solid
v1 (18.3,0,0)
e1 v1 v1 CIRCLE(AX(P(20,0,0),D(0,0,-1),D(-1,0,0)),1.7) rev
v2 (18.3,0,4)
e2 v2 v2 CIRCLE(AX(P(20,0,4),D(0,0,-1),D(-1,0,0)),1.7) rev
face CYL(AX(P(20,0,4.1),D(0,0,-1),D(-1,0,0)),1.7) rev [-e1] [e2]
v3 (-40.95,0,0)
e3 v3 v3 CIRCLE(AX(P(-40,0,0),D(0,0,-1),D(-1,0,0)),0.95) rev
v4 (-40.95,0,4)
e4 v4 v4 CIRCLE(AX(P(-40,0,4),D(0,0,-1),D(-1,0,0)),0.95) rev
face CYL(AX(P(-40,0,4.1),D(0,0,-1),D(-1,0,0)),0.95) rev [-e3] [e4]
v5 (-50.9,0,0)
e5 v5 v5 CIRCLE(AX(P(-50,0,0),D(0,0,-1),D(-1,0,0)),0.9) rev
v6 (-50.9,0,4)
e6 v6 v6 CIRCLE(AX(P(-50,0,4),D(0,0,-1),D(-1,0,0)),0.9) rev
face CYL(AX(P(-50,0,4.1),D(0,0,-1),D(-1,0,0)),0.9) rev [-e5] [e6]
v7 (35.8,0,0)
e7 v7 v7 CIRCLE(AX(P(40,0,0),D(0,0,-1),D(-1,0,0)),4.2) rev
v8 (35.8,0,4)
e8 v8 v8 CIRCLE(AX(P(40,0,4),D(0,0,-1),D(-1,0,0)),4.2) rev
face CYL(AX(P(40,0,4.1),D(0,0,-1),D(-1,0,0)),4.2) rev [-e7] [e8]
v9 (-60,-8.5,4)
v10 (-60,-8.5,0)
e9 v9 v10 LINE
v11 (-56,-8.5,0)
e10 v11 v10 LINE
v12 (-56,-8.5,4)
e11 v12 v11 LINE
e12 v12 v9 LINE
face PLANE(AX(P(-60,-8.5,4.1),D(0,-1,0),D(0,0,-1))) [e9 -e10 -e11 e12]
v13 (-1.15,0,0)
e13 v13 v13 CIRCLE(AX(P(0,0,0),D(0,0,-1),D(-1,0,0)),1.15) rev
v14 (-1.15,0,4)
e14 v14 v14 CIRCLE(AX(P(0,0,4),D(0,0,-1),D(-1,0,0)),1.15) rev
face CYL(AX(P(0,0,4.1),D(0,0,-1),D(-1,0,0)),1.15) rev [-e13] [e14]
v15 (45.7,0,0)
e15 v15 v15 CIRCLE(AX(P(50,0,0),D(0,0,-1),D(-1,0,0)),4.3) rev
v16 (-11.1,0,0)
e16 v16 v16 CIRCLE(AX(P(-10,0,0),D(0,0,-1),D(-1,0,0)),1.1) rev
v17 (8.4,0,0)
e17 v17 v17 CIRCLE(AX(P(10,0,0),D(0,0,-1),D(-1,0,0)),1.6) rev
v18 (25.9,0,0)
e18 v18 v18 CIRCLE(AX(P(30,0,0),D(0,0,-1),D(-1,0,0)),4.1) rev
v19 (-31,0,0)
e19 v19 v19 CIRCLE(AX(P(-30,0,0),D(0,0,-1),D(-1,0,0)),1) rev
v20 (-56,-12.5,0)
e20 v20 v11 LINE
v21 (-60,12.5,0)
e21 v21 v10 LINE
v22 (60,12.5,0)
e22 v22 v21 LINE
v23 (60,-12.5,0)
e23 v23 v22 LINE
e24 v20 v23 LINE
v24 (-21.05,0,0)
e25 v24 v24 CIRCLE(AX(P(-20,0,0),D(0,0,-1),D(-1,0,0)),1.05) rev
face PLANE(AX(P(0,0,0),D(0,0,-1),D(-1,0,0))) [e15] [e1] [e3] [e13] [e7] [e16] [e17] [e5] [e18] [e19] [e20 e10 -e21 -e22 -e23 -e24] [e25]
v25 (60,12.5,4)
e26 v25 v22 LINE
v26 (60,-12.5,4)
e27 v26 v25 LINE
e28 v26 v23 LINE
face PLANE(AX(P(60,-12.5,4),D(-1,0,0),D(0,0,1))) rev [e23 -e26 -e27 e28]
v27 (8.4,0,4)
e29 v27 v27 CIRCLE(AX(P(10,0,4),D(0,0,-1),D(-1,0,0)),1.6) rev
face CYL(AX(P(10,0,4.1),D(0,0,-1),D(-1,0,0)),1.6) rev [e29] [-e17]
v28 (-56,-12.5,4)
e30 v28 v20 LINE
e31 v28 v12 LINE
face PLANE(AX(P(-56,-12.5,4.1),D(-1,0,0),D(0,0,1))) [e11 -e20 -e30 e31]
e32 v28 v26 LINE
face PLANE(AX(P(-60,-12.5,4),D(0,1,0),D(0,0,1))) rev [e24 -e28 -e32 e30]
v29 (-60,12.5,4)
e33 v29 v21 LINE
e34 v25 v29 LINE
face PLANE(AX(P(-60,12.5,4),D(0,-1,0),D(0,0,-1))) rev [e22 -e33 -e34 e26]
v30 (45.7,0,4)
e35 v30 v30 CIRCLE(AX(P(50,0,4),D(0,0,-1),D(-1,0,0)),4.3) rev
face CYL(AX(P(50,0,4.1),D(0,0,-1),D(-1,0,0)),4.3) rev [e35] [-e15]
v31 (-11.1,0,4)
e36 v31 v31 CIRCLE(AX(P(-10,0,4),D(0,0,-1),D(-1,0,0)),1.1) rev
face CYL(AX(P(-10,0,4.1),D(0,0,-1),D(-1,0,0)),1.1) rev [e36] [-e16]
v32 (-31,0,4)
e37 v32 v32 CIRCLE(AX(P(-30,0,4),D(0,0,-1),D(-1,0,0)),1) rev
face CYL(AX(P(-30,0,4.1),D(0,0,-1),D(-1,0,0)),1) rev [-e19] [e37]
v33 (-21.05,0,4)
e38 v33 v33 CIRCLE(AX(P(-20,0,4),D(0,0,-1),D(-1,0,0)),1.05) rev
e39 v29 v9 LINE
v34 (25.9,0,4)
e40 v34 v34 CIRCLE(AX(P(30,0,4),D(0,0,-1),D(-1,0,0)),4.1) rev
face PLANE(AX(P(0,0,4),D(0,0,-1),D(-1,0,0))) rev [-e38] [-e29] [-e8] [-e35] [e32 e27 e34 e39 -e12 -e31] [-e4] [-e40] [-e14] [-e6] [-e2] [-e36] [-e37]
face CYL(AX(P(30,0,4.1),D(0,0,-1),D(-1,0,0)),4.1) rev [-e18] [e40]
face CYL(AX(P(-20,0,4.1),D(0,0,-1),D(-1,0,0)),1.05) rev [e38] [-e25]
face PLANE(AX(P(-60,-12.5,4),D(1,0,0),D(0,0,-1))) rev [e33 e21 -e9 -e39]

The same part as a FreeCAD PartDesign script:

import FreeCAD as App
import Part
import Sketcher

V = App.Vector


def add_polygon(sketch, points):
    """Adds a closed chain of lines whose ends are joined by coincident constraints."""
    first, n = sketch.GeometryCount, len(points)
    for a, b in zip(points, points[1:] + points[:1]):
        sketch.addGeometry(Part.LineSegment(App.Vector(*a, 0), App.Vector(*b, 0)), False)
    for i in range(n):
        sketch.addConstraint(Sketcher.Constraint("Coincident", first + i, 2, first + (i + 1) % n, 1))

doc = App.newDocument("Part")
body = doc.addObject("PartDesign::Body", "Body")

# Sketch on XY plane
sketch1 = body.newObject("Sketcher::SketchObject", "Sketch")
sketch1.AttachmentSupport = (doc.getObject("XY_Plane"), [""])
sketch1.MapMode = "FlatFace"
add_polygon(sketch1, [(-60, 12), (-60, -12), (60, -12), (60, 12)])  # lines 0-3
sketch1.addConstraint(Sketcher.Constraint("Vertical", 0))
sketch1.addConstraint(Sketcher.Constraint("Horizontal", 1))
sketch1.addConstraint(Sketcher.Constraint("Vertical", 2))
sketch1.addConstraint(Sketcher.Constraint("Horizontal", 3))
sketch1.addConstraint(Sketcher.Constraint("Symmetric", 0, 2, 2, 2, -1, 1))
sketch1.addConstraint(Sketcher.Constraint("DistanceX", 1, 1, 1, 2, 120.0))
sketch1.addConstraint(Sketcher.Constraint("DistanceY", 0, 2, 0, 1, 25.0))
pad1 = body.newObject("PartDesign::Pad", "Pad")
pad1.Profile = sketch1
pad1.Length = 4

# Sketch on XY plane
sketch2 = body.newObject("Sketcher::SketchObject", "Sketch001")
sketch2.AttachmentSupport = (doc.getObject("XY_Plane"), [""])
sketch2.MapMode = "FlatFace"
sketch2.AttachmentOffset = App.Placement(V(0, 0, -0.1), App.Rotation())
sketch2.addGeometry(Part.Circle(V(-50, 0, 0), V(0, 0, 1), 0.9), False)
sketch2.addConstraint(Sketcher.Constraint("PointOnObject", 0, 3, -1))
sketch2.addConstraint(Sketcher.Constraint("Diameter", 0, 1.8))
sketch2.addConstraint(Sketcher.Constraint("DistanceX", 0, 3, -1, 1, 50.0))
pocket1 = body.newObject("PartDesign::Pocket", "Pocket")
pocket1.Profile = sketch2
pocket1.Length = 4.2
pocket1.Reversed = True

# Sketch on XY plane
sketch3 = body.newObject("Sketcher::SketchObject", "Sketch002")
sketch3.AttachmentSupport = (doc.getObject("XY_Plane"), [""])
sketch3.MapMode = "FlatFace"
sketch3.AttachmentOffset = App.Placement(V(0, 0, -0.1), App.Rotation())
sketch3.addGeometry(Part.Circle(V(-40, 0, 0), V(0, 0, 1), 0.9), False)
sketch3.addConstraint(Sketcher.Constraint("PointOnObject", 0, 3, -1))
sketch3.addConstraint(Sketcher.Constraint("Diameter", 0, 1.9))
sketch3.addConstraint(Sketcher.Constraint("DistanceX", 0, 3, -1, 1, 40.0))
pocket2 = body.newObject("PartDesign::Pocket", "Pocket001")
pocket2.Profile = sketch3
pocket2.Length = 4.2
pocket2.Reversed = True

# Sketch on XY plane
sketch4 = body.newObject("Sketcher::SketchObject", "Sketch003")
sketch4.AttachmentSupport = (doc.getObject("XY_Plane"), [""])
sketch4.MapMode = "FlatFace"
sketch4.AttachmentOffset = App.Placement(V(0, 0, -0.1), App.Rotation())
sketch4.addGeometry(Part.Circle(V(-30, 0, 0), V(0, 0, 1), 1), False)
sketch4.addConstraint(Sketcher.Constraint("PointOnObject", 0, 3, -1))
sketch4.addConstraint(Sketcher.Constraint("Diameter", 0, 2.0))
sketch4.addConstraint(Sketcher.Constraint("DistanceX", 0, 3, -1, 1, 30.0))
pocket3 = body.newObject("PartDesign::Pocket", "Pocket002")
pocket3.Profile = sketch4
pocket3.Length = 4.2
pocket3.Reversed = True

# Sketch on XY plane
sketch5 = body.newObject("Sketcher::SketchObject", "Sketch004")
sketch5.AttachmentSupport = (doc.getObject("XY_Plane"), [""])
sketch5.MapMode = "FlatFace"
sketch5.AttachmentOffset = App.Placement(V(0, 0, -0.1), App.Rotation())
sketch5.addGeometry(Part.Circle(V(-20, 0, 0), V(0, 0, 1), 1.1), False)
sketch5.addConstraint(Sketcher.Constraint("PointOnObject", 0, 3, -1))
sketch5.addConstraint(Sketcher.Constraint("Diameter", 0, 2.1))
sketch5.addConstraint(Sketcher.Constraint("DistanceX", 0, 3, -1, 1, 20.0))
pocket4 = body.newObject("PartDesign::Pocket", "Pocket003")
pocket4.Profile = sketch5
pocket4.Length = 4.2
pocket4.Reversed = True

# Sketch on XY plane
sketch6 = body.newObject("Sketcher::SketchObject", "Sketch005")
sketch6.AttachmentSupport = (doc.getObject("XY_Plane"), [""])
sketch6.MapMode = "FlatFace"
sketch6.AttachmentOffset = App.Placement(V(0, 0, -0.1), App.Rotation())
sketch6.addGeometry(Part.Circle(V(-10, 0, 0), V(0, 0, 1), 1.1), False)
sketch6.addConstraint(Sketcher.Constraint("PointOnObject", 0, 3, -1))
sketch6.addConstraint(Sketcher.Constraint("Diameter", 0, 2.2))
sketch6.addConstraint(Sketcher.Constraint("DistanceX", 0, 3, -1, 1, 10.0))
pocket5 = body.newObject("PartDesign::Pocket", "Pocket004")
pocket5.Profile = sketch6
pocket5.Length = 4.2
pocket5.Reversed = True

# Sketch on XY plane
sketch7 = body.newObject("Sketcher::SketchObject", "Sketch006")
sketch7.AttachmentSupport = (doc.getObject("XY_Plane"), [""])
sketch7.MapMode = "FlatFace"
sketch7.AttachmentOffset = App.Placement(V(0, 0, -0.1), App.Rotation())
sketch7.addGeometry(Part.Circle(V(0, 0, 0), V(0, 0, 1), 1.1), False)
sketch7.addConstraint(Sketcher.Constraint("Coincident", 0, 3, -1, 1))
sketch7.addConstraint(Sketcher.Constraint("Diameter", 0, 2.3))
pocket6 = body.newObject("PartDesign::Pocket", "Pocket005")
pocket6.Profile = sketch7
pocket6.Length = 4.2
pocket6.Reversed = True

# Sketch on XY plane
sketch8 = body.newObject("Sketcher::SketchObject", "Sketch007")
sketch8.AttachmentSupport = (doc.getObject("XY_Plane"), [""])
sketch8.MapMode = "FlatFace"
sketch8.AttachmentOffset = App.Placement(V(0, 0, -0.1), App.Rotation())
sketch8.addGeometry(Part.Circle(V(10, 0, 0), V(0, 0, 1), 1.6), False)
sketch8.addConstraint(Sketcher.Constraint("PointOnObject", 0, 3, -1))
sketch8.addConstraint(Sketcher.Constraint("Diameter", 0, 3.2))
sketch8.addConstraint(Sketcher.Constraint("DistanceX", -1, 1, 0, 3, 10.0))
pocket7 = body.newObject("PartDesign::Pocket", "Pocket006")
pocket7.Profile = sketch8
pocket7.Length = 4.2
pocket7.Reversed = True

# Sketch on XY plane
sketch9 = body.newObject("Sketcher::SketchObject", "Sketch008")
sketch9.AttachmentSupport = (doc.getObject("XY_Plane"), [""])
sketch9.MapMode = "FlatFace"
sketch9.AttachmentOffset = App.Placement(V(0, 0, -0.1), App.Rotation())
sketch9.addGeometry(Part.Circle(V(20, 0, 0), V(0, 0, 1), 1.7), False)
sketch9.addConstraint(Sketcher.Constraint("PointOnObject", 0, 3, -1))
sketch9.addConstraint(Sketcher.Constraint("Diameter", 0, 3.4))
sketch9.addConstraint(Sketcher.Constraint("DistanceX", -1, 1, 0, 3, 20.0))
pocket8 = body.newObject("PartDesign::Pocket", "Pocket007")
pocket8.Profile = sketch9
pocket8.Length = 4.2
pocket8.Reversed = True

# Sketch on XY plane
sketch10 = body.newObject("Sketcher::SketchObject", "Sketch009")
sketch10.AttachmentSupport = (doc.getObject("XY_Plane"), [""])
sketch10.MapMode = "FlatFace"
sketch10.AttachmentOffset = App.Placement(V(0, 0, -0.1), App.Rotation())
sketch10.addGeometry(Part.Circle(V(30, 0, 0), V(0, 0, 1), 4.1), False)
sketch10.addConstraint(Sketcher.Constraint("PointOnObject", 0, 3, -1))
sketch10.addConstraint(Sketcher.Constraint("Diameter", 0, 8.2))
sketch10.addConstraint(Sketcher.Constraint("DistanceX", -1, 1, 0, 3, 30.0))
pocket9 = body.newObject("PartDesign::Pocket", "Pocket008")
pocket9.Profile = sketch10
pocket9.Length = 4.2
pocket9.Reversed = True

# Sketch on XY plane
sketch11 = body.newObject("Sketcher::SketchObject", "Sketch010")
sketch11.AttachmentSupport = (doc.getObject("XY_Plane"), [""])
sketch11.MapMode = "FlatFace"
sketch11.AttachmentOffset = App.Placement(V(0, 0, -0.1), App.Rotation())
sketch11.addGeometry(Part.Circle(V(40, 0, 0), V(0, 0, 1), 4.2), False)
sketch11.addConstraint(Sketcher.Constraint("PointOnObject", 0, 3, -1))
sketch11.addConstraint(Sketcher.Constraint("Diameter", 0, 8.4))
sketch11.addConstraint(Sketcher.Constraint("DistanceX", -1, 1, 0, 3, 40.0))
pocket10 = body.newObject("PartDesign::Pocket", "Pocket009")
pocket10.Profile = sketch11
pocket10.Length = 4.2
pocket10.Reversed = True

# Sketch on XY plane
sketch12 = body.newObject("Sketcher::SketchObject", "Sketch011")
sketch12.AttachmentSupport = (doc.getObject("XY_Plane"), [""])
sketch12.MapMode = "FlatFace"
sketch12.AttachmentOffset = App.Placement(V(0, 0, -0.1), App.Rotation())
sketch12.addGeometry(Part.Circle(V(50, 0, 0), V(0, 0, 1), 4.3), False)
sketch12.addConstraint(Sketcher.Constraint("PointOnObject", 0, 3, -1))
sketch12.addConstraint(Sketcher.Constraint("Diameter", 0, 8.6))
sketch12.addConstraint(Sketcher.Constraint("DistanceX", -1, 1, 0, 3, 50.0))
pocket11 = body.newObject("PartDesign::Pocket", "Pocket010")
pocket11.Profile = sketch12
pocket11.Length = 4.2
pocket11.Reversed = True

# Sketch on XY plane
sketch13 = body.newObject("Sketcher::SketchObject", "Sketch012")
sketch13.AttachmentSupport = (doc.getObject("XY_Plane"), [""])
sketch13.MapMode = "FlatFace"
sketch13.AttachmentOffset = App.Placement(V(0, 0, -0.1), App.Rotation())
add_polygon(sketch13, [(-60, -8.5), (-60, -12.5), (-56, -12.5), (-56, -8.5)])  # lines 0-3
sketch13.addConstraint(Sketcher.Constraint("Vertical", 0))
sketch13.addConstraint(Sketcher.Constraint("Horizontal", 1))
sketch13.addConstraint(Sketcher.Constraint("Vertical", 2))
sketch13.addConstraint(Sketcher.Constraint("Horizontal", 3))
sketch13.addConstraint(Sketcher.Constraint("Equal", 3, 0))
sketch13.addConstraint(Sketcher.Constraint("DistanceX", 1, 1, 1, 2, 4.0))
sketch13.addConstraint(Sketcher.Constraint("DistanceX", 0, 2, -1, 1, 60.0))
sketch13.addConstraint(Sketcher.Constraint("DistanceY", 0, 2, -1, 1, 12.5))
pocket12 = body.newObject("PartDesign::Pocket", "Pocket011")
pocket12.Profile = sketch13
pocket12.Length = 4.2
pocket12.Reversed = True

doc.recompute()
